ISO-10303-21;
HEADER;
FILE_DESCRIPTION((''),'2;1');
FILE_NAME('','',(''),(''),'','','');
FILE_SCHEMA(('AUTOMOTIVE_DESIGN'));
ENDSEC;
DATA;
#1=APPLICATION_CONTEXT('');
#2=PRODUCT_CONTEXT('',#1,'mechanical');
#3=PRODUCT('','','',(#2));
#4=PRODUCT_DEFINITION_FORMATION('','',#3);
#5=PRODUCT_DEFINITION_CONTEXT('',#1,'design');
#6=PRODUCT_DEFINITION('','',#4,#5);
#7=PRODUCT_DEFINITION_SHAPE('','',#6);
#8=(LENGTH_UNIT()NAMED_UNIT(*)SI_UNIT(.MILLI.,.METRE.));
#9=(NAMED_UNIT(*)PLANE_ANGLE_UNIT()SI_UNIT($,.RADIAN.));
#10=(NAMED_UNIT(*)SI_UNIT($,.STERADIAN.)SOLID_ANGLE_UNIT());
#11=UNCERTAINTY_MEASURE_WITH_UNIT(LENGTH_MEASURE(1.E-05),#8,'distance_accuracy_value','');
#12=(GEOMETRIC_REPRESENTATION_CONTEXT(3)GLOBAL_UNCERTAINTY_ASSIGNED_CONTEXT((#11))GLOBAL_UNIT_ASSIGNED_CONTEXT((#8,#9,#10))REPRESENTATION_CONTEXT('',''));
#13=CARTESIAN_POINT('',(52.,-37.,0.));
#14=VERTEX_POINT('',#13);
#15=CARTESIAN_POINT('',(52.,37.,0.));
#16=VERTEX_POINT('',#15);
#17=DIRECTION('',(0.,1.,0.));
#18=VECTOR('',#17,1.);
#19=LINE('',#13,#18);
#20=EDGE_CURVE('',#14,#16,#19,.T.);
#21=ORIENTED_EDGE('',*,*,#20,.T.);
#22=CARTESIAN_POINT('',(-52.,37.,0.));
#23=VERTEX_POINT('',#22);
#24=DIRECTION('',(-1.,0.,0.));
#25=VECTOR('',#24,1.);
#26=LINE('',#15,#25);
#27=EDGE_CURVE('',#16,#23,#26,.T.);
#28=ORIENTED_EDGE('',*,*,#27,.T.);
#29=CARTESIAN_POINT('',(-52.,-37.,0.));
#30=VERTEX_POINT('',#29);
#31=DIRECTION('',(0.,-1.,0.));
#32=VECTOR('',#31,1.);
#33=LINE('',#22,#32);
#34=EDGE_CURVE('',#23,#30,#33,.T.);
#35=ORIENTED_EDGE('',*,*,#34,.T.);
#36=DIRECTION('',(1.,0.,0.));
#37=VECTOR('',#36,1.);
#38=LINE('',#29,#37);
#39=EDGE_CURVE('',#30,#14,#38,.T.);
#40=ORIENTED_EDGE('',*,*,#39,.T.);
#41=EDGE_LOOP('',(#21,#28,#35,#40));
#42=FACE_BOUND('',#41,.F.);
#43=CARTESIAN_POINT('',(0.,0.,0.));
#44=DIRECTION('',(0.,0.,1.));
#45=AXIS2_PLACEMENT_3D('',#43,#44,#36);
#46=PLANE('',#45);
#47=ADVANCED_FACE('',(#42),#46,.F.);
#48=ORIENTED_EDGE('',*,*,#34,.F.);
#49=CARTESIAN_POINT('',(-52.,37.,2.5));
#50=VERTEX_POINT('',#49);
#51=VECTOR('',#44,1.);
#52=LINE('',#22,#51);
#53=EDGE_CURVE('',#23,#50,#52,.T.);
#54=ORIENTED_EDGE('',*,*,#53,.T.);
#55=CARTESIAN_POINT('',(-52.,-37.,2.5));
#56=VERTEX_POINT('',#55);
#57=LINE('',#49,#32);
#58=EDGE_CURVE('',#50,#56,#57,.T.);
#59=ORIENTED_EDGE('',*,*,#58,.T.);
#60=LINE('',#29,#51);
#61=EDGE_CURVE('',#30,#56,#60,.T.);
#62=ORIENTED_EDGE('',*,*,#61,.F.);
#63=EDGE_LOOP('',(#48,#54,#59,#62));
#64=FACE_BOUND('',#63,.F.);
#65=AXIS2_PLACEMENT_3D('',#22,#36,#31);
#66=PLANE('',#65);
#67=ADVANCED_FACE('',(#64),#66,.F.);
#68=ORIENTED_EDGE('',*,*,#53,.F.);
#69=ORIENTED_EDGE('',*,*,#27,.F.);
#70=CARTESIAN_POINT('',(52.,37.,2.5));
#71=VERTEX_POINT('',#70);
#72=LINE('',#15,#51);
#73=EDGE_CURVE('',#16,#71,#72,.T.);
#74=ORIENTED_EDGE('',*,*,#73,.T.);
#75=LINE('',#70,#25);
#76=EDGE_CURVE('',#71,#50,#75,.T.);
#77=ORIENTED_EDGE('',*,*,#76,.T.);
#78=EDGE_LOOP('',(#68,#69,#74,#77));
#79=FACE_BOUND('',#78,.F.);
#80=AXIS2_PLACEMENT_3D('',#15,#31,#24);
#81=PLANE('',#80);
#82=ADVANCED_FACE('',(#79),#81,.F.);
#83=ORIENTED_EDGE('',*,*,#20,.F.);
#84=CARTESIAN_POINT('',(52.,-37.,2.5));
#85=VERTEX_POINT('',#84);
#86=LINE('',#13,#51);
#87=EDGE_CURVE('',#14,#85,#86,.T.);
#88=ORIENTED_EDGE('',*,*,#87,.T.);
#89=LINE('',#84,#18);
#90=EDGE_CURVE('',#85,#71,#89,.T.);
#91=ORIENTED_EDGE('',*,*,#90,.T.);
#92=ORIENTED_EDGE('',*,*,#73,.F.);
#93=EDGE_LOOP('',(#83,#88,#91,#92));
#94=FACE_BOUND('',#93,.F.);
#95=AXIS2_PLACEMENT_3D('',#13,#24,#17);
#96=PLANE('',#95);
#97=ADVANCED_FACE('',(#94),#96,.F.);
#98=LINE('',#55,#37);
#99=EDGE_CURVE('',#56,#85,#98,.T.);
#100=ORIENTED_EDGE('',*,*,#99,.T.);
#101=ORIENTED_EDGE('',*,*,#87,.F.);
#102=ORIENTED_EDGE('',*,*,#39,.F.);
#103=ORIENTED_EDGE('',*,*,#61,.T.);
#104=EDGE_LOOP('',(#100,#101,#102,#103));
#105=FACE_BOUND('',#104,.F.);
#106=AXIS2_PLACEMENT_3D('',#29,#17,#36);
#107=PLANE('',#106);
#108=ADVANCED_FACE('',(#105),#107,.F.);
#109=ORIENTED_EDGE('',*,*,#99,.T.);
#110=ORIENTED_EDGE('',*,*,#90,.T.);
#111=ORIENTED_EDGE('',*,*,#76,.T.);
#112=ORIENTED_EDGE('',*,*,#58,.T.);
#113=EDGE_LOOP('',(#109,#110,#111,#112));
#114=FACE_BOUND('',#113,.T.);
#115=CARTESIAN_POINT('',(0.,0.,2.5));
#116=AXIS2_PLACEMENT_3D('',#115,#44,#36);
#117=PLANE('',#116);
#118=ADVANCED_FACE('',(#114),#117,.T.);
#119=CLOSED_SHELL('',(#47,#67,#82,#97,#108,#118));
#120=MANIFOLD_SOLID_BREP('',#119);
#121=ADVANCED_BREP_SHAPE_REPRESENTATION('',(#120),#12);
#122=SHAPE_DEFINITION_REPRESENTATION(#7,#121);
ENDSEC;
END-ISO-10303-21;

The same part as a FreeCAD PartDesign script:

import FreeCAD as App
import Part
import Sketcher

V = App.Vector
Q = App.Units.Quantity


def add_polygon(sketch, points):
    """Adds a closed chain of lines whose ends are joined by coincident constraints."""
    first, n = sketch.GeometryCount, len(points)
    for a, b in zip(points, points[1:] + points[:1]):
        sketch.addGeometry(Part.LineSegment(App.Vector(*a, 0), App.Vector(*b, 0)), False)
    for i in range(n):
        sketch.addConstraint(Sketcher.Constraint("Coincident", first + i, 2, first + (i + 1) % n, 1))

doc = App.newDocument("Part")
params = doc.addObject("Spreadsheet::Sheet", "Params")
for row, (alias, value) in enumerate([
    ("sketch1_width", "104 mm"),
    ("sketch1_height", "74 mm"),
    ("pad1_length", "2.5 mm"),
], start=1):
    params.set(f"A{row}", alias)
    params.set(f"B{row}", "=" + value)
    params.setAlias(f"B{row}", alias)

body = doc.addObject("PartDesign::Body", "Body")

# Sketch on XY plane
sketch1 = body.newObject("Sketcher::SketchObject", "Sketch")
sketch1.AttachmentSupport = (doc.getObject("XY_Plane"), [""])
sketch1.MapMode = "FlatFace"
add_polygon(sketch1, [(-52, 37), (-52, -37), (52, -37), (52, 37)])  # lines 0-3
sketch1.addConstraint(Sketcher.Constraint("Vertical", 0))
sketch1.addConstraint(Sketcher.Constraint("Horizontal", 1))
sketch1.addConstraint(Sketcher.Constraint("Vertical", 2))
sketch1.addConstraint(Sketcher.Constraint("Horizontal", 3))
sketch1.addConstraint(Sketcher.Constraint("Symmetric", 0, 2, 2, 2, -1, 1))
sketch1.addConstraint(Sketcher.Constraint("DistanceX", 1, 1, 1, 2, Q("104 mm")))
sketch1.addConstraint(Sketcher.Constraint("DistanceY", 0, 2, 0, 1, Q("74 mm")))
sketch1.setExpression("Constraints[9]", "Params.sketch1_width")
sketch1.setExpression("Constraints[10]", "Params.sketch1_height")
pad1 = body.newObject("PartDesign::Pad", "Pad")
pad1.Profile = sketch1
pad1.setExpression("Length", "Params.pad1_length")

doc.recompute()
